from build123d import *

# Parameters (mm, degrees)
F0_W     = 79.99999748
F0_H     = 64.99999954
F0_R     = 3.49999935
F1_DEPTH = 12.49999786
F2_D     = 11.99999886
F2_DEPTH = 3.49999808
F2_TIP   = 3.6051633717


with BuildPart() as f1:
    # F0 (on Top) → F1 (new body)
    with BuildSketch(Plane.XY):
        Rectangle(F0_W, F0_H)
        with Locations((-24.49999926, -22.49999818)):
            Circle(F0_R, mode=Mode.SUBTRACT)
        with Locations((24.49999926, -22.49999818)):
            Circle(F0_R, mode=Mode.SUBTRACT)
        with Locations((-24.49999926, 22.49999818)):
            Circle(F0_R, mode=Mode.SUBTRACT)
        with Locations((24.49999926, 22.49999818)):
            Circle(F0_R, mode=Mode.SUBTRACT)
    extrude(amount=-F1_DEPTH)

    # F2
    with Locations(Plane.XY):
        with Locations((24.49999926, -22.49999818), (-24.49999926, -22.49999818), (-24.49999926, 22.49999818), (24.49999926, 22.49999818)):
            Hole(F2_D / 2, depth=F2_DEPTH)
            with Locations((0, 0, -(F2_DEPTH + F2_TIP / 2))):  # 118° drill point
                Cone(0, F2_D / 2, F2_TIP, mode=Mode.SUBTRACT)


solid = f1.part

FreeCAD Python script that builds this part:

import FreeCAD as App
import Part
import Sketcher
from FreeCAD import Vector

doc = App.newDocument("Part")
body = doc.addObject("PartDesign::Body", "Body")

sketch1 = body.newObject("Sketcher::SketchObject", "Sketch")
sketch1.AttachmentSupport = (doc.getObject("XY_Plane"), [""])
sketch1.MapMode = "FlatFace"
sketch1.addGeometry(Part.LineSegment(Vector(-39.999999, 32.5, 0), Vector(-39.999999, -32.5, 0)), False)
sketch1.addGeometry(Part.LineSegment(Vector(-39.999999, -32.5, 0), Vector(39.999999, -32.5, 0)), False)
sketch1.addGeometry(Part.LineSegment(Vector(39.999999, -32.5, 0), Vector(39.999999, 32.5, 0)), False)
sketch1.addGeometry(Part.LineSegment(Vector(39.999999, 32.5, 0), Vector(-39.999999, 32.5, 0)), False)
sketch1.addGeometry(Part.Circle(Vector(-24.499999, -22.499998, 0), Vector(0, 0, 1), 3.499999), False)
sketch1.addGeometry(Part.Circle(Vector(24.499999, -22.499998, 0), Vector(0, 0, 1), 3.499999), False)
sketch1.addGeometry(Part.Circle(Vector(-24.499999, 22.499998, 0), Vector(0, 0, 1), 3.499999), False)
sketch1.addGeometry(Part.Circle(Vector(24.499999, 22.499998, 0), Vector(0, 0, 1), 3.499999), False)
sketch1.addConstraint(Sketcher.Constraint("Coincident", 0, 2, 1, 1))
sketch1.addConstraint(Sketcher.Constraint("Coincident", 1, 2, 2, 1))
sketch1.addConstraint(Sketcher.Constraint("Coincident", 2, 2, 3, 1))
sketch1.addConstraint(Sketcher.Constraint("Coincident", 3, 2, 0, 1))
sketch1.addConstraint(Sketcher.Constraint("Vertical", 0))
sketch1.addConstraint(Sketcher.Constraint("Horizontal", 1))
sketch1.addConstraint(Sketcher.Constraint("Vertical", 2))
sketch1.addConstraint(Sketcher.Constraint("Horizontal", 3))
sketch1.addConstraint(Sketcher.Constraint("Equal", 4, 5))
sketch1.addConstraint(Sketcher.Constraint("Equal", 5, 6))
sketch1.addConstraint(Sketcher.Constraint("Equal", 6, 7))
sketch1.addConstraint(Sketcher.Constraint("Symmetric", 5, 3, 6, 3, -1, 1))
sketch1.addConstraint(Sketcher.Constraint("Symmetric", 4, 3, 7, 3, -1, 1))
sketch1.addConstraint(Sketcher.Constraint("Symmetric", 0, 2, 2, 2, -1, 1))
sketch1.addConstraint(Sketcher.Constraint("Symmetric", 4, 3, 5, 3, -2))
sketch1.addConstraint(Sketcher.Constraint("Diameter", 4, 6.999999))
sketch1.addConstraint(Sketcher.Constraint("DistanceY", 0, 2, 0, 1, 65.0))
sketch1.addConstraint(Sketcher.Constraint("DistanceX", 0, 2, -1, 1, 39.999999))
sketch1.addConstraint(Sketcher.Constraint("DistanceX", 4, 3, 5, 3, 48.999999))
sketch1.addConstraint(Sketcher.Constraint("DistanceY", 0, 2, 4, 3, 10.000002))
pad1 = body.newObject("PartDesign::Pad", "Pad")
pad1.Profile = sketch1
pad1.Length = 12.499998
pad1.Reversed = True

sketch2 = body.newObject("Sketcher::SketchObject", "Sketch001")
sketch2.AttachmentSupport = (doc.getObject("XY_Plane"), [""])
sketch2.MapMode = "FlatFace"
sketch2.addGeometry(Part.Circle(Vector(24.499999, -22.499998, 0), Vector(0, 0, 1), 5.999999), False)
sketch2.addGeometry(Part.Circle(Vector(-24.499999, -22.499998, 0), Vector(0, 0, 1), 5.999999), False)
sketch2.addGeometry(Part.Circle(Vector(-24.499999, 22.499998, 0), Vector(0, 0, 1), 5.999999), False)
sketch2.addGeometry(Part.Circle(Vector(24.499999, 22.499998, 0), Vector(0, 0, 1), 5.999999), False)
sketch2.addConstraint(Sketcher.Constraint("Equal", 0, 1))
sketch2.addConstraint(Sketcher.Constraint("Equal", 1, 2))
sketch2.addConstraint(Sketcher.Constraint("Equal", 2, 3))
sketch2.addConstraint(Sketcher.Constraint("Symmetric", 0, 3, 2, 3, -1, 1))
sketch2.addConstraint(Sketcher.Constraint("Symmetric", 1, 3, 3, 3, -1, 1))
sketch2.addConstraint(Sketcher.Constraint("Symmetric", 0, 3, 1, 3, -2))
sketch2.addConstraint(Sketcher.Constraint("Diameter", 0, 11.999999))
sketch2.addConstraint(Sketcher.Constraint("DistanceX", 1, 3, 0, 3, 48.999999))
sketch2.addConstraint(Sketcher.Constraint("DistanceY", 0, 3, -1, 1, 22.499998))
doc.recompute()
hole = body.newObject("PartDesign::Hole", "Hole")
hole.Profile = sketch2
hole.ThreadType = "None"
hole.Diameter = 11.999999
hole.DepthType = "Dimension"
hole.Depth = 3.499998
hole.DrillPoint = "Angled"
hole.DrillPointAngle = 118

doc.recompute()
